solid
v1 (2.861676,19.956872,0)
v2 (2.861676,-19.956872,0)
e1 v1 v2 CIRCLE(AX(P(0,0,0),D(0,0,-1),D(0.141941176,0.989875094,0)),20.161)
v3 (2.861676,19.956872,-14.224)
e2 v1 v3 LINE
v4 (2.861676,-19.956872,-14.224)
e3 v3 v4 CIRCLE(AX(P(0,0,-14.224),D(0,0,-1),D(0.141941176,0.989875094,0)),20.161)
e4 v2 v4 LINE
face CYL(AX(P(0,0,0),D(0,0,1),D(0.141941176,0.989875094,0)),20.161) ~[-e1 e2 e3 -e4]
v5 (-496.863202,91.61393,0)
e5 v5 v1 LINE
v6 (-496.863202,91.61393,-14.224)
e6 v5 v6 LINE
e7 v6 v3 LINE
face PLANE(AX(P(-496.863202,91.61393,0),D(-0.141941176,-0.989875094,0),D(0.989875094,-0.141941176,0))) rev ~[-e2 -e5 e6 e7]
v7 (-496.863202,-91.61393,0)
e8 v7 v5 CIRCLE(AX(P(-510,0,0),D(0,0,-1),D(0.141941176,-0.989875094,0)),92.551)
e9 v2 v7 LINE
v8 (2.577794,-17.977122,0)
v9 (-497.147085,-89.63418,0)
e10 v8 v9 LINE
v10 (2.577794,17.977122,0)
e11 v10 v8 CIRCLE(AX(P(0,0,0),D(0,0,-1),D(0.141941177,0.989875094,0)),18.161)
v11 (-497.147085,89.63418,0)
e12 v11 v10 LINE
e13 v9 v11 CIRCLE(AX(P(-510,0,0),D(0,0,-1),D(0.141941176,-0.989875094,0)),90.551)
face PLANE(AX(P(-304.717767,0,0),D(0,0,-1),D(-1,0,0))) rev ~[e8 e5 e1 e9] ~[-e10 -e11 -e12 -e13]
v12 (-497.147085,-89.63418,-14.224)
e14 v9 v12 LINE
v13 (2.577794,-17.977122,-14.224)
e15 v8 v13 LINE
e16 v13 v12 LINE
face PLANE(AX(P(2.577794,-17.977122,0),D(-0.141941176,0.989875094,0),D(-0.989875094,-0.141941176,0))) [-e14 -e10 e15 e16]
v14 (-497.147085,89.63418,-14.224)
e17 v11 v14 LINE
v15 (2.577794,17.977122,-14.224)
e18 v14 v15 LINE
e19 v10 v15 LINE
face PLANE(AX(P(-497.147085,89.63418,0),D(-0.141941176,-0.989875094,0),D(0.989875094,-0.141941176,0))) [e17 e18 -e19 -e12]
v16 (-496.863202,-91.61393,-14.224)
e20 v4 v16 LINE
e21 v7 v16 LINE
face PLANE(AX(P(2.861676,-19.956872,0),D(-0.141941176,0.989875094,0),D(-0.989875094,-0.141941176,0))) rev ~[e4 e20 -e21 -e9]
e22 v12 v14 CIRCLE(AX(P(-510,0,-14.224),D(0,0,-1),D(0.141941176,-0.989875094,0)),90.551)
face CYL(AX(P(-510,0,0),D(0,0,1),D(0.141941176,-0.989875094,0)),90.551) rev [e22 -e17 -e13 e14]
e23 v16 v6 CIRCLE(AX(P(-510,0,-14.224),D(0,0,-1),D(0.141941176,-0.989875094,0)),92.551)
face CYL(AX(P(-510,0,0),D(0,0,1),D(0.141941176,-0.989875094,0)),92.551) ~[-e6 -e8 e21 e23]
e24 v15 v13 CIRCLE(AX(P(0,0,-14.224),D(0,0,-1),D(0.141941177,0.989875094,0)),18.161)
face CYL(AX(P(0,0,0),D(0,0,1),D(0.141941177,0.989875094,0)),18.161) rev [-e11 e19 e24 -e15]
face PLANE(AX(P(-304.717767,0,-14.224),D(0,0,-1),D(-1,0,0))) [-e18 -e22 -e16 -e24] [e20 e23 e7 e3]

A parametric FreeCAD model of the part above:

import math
import FreeCAD as App
import Part
import Sketcher
Q = App.Units.Quantity

doc = App.newDocument("Part")
body = doc.addObject("PartDesign::Body", "Body")

# Sketch on XY plane
sketch1 = body.newObject("Sketcher::SketchObject", "Sketch")
sketch1.AttachmentSupport = (doc.getObject("XY_Plane"), [""])
sketch1.MapMode = "FlatFace"
sketch1.addGeometry(Part.LineSegment(App.Vector(3, 20, 0), App.Vector(-497, 92, 0)), False)
sketch1.addGeometry(Part.ArcOfCircle(Part.Circle(App.Vector(-510, 0, 0), App.Vector(0, 0, 1), 93), math.radians(82), math.radians(278)), False)
sketch1.addGeometry(Part.LineSegment(App.Vector(-497, -92, 0), App.Vector(3, -20, 0)), False)
sketch1.addGeometry(Part.ArcOfCircle(Part.Circle(App.Vector(0, 0, 0), App.Vector(0, 0, 1), 20), math.radians(-82), math.radians(82)), False)
sketch1.addGeometry(Part.LineSegment(App.Vector(-497, 90, 0), App.Vector(3, 18, 0)), False)
sketch1.addGeometry(Part.ArcOfCircle(Part.Circle(App.Vector(0, 0, 0), App.Vector(0, 0, 1), 18), math.radians(-82), math.radians(82)), False)
sketch1.addGeometry(Part.LineSegment(App.Vector(3, -18, 0), App.Vector(-497, -90, 0)), False)
sketch1.addGeometry(Part.ArcOfCircle(Part.Circle(App.Vector(-510, 0, 0), App.Vector(0, 0, 1), 91), math.radians(82), math.radians(278)), False)
sketch1.addConstraint(Sketcher.Constraint("Tangent", 0, 2, 1, 1))
sketch1.addConstraint(Sketcher.Constraint("Tangent", 1, 2, 2, 1))
sketch1.addConstraint(Sketcher.Constraint("Tangent", 2, 2, 3, 1))
sketch1.addConstraint(Sketcher.Constraint("Tangent", 3, 2, 0, 1))
sketch1.addConstraint(Sketcher.Constraint("Tangent", 4, 2, 5, 2))
sketch1.addConstraint(Sketcher.Constraint("Tangent", 5, 1, 6, 1))
sketch1.addConstraint(Sketcher.Constraint("Tangent", 6, 2, 7, 2))
sketch1.addConstraint(Sketcher.Constraint("Tangent", 7, 1, 4, 1))
sketch1.addConstraint(Sketcher.Constraint("Coincident", 3, 3, -1, 1))
sketch1.addConstraint(Sketcher.Constraint("Coincident", 5, 3, -1, 1))
sketch1.addConstraint(Sketcher.Constraint("Coincident", 7, 3, 1, 3))
sketch1.addConstraint(Sketcher.Constraint("PointOnObject", 1, 3, -1))
sketch1.addConstraint(Sketcher.Constraint("Parallel", 0, 4))
sketch1.addConstraint(Sketcher.Constraint("Radius", 5, Q("0.715 in")))
sketch1.addConstraint(Sketcher.Constraint("Radius", 7, Q("3.565 in")))
sketch1.addConstraint(Sketcher.Constraint("Radius", 1, 92.551))
sketch1.addConstraint(Sketcher.Constraint("Distance", 0, 504.836298))
pad1 = body.newObject("PartDesign::Pad", "Pad")
pad1.Profile = sketch1
pad1.Length = Q("0.56 in")
pad1.Reversed = True

doc.recompute()
